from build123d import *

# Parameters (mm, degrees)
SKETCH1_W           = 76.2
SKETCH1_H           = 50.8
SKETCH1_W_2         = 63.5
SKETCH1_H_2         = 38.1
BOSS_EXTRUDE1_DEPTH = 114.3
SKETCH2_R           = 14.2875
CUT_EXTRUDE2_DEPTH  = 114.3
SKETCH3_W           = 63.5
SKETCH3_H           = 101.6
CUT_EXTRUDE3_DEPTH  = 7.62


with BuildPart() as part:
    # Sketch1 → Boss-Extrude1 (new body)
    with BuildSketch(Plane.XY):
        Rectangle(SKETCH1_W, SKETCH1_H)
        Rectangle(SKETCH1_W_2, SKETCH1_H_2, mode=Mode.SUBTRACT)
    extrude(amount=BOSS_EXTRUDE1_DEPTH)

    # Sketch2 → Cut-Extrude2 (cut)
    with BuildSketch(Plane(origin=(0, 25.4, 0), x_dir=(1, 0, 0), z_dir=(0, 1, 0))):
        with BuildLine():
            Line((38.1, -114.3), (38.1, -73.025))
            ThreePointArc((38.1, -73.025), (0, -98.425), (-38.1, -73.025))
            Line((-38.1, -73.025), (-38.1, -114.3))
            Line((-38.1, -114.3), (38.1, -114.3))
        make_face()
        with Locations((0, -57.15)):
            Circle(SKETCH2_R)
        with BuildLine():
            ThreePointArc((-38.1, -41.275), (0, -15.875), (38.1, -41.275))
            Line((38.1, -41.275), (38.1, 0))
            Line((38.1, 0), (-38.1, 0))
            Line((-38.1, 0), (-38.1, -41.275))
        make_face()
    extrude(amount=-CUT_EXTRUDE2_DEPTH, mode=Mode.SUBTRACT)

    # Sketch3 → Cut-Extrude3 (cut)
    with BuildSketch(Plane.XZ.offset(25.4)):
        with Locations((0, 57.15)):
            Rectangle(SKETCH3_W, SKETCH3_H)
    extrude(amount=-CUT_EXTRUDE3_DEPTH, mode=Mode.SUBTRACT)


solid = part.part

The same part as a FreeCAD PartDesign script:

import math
import FreeCAD as App
import Part
import Sketcher
from FreeCAD import Vector
Q = App.Units.Quantity


def add_polygon(sketch, points):
    """Adds a closed chain of lines whose ends are joined by coincident constraints."""
    first, n = sketch.GeometryCount, len(points)
    for a, b in zip(points, points[1:] + points[:1]):
        sketch.addGeometry(Part.LineSegment(App.Vector(*a, 0), App.Vector(*b, 0)), False)
    for i in range(n):
        sketch.addConstraint(Sketcher.Constraint("Coincident", first + i, 2, first + (i + 1) % n, 1))

doc = App.newDocument("Part")
body = doc.addObject("PartDesign::Body", "Body")

sketch1 = body.newObject("Sketcher::SketchObject", "Sketch")
sketch1.AttachmentSupport = (doc.getObject("XY_Plane"), [""])
sketch1.MapMode = "FlatFace"
add_polygon(sketch1, [(-38, 25), (-38, -25), (38, -25), (38, 25)])
add_polygon(sketch1, [(32, -19), (-32, -19), (-32, 19), (32, 19)])
sketch1.addConstraint([
    Sketcher.Constraint("Vertical", 0),
    Sketcher.Constraint("Horizontal", 1),
    Sketcher.Constraint("Vertical", 2),
    Sketcher.Constraint("Horizontal", 3),
    Sketcher.Constraint("Horizontal", 4),
    Sketcher.Constraint("Vertical", 5),
    Sketcher.Constraint("Horizontal", 6),
    Sketcher.Constraint("Vertical", 7),
    Sketcher.Constraint("Symmetric", 0, 2, 2, 2, -1, 1),
    Sketcher.Constraint("Symmetric", 4, 2, 6, 2, -1, 1),
    Sketcher.Constraint("DistanceX", 1, 1, 1, 2, Q("3 in")),
    Sketcher.Constraint("DistanceY", 0, 2, 0, 1, Q("2 in")),
    Sketcher.Constraint("DistanceX", 4, 2, 4, 1, Q("2.5 in")),
    Sketcher.Constraint("DistanceY", 5, 1, 5, 2, Q("1.5 in")),
])
pad1 = body.newObject("PartDesign::Pad", "Pad")
pad1.Profile = sketch1
pad1.Length = Q("4.5 in")

sketch2 = body.newObject("Sketcher::SketchObject", "Sketch001")
sketch2.AttachmentSupport = (doc.getObject("XZ_Plane"), [""])
sketch2.MapMode = "FlatFace"
sketch2.AttachmentOffset = App.Placement(Vector(0, 0, -1 * 25.4), App.Rotation())
sketch2.addGeometry([
    Part.LineSegment(Vector(38, 114, 0), Vector(38, 73, 0)),
    Part.ArcOfCircle(Part.Circle(Vector(0, 57, 0), Vector(0, 0, 1), 41), math.radians(23), math.radians(157)),
    Part.LineSegment(Vector(-38, 73, 0), Vector(-38, 114, 0)),
    Part.LineSegment(Vector(-38, 114, 0), Vector(38, 114, 0)),
    Part.Circle(Vector(0, 57, 0), Vector(0, 0, 1), 14),
    Part.ArcOfCircle(Part.Circle(Vector(0, 57, 0), Vector(0, 0, 1), 41), math.radians(-157), math.radians(-23)),
    Part.LineSegment(Vector(38, 41, 0), Vector(38, 0, 0)),
    Part.LineSegment(Vector(38, 0, 0), Vector(-38, 0, 0)),
    Part.LineSegment(Vector(-38, 0, 0), Vector(-38, 41, 0)),
], False)
sketch2.addConstraint([
    Sketcher.Constraint("Coincident", 0, 2, 1, 1),
    Sketcher.Constraint("Coincident", 1, 2, 2, 1),
    Sketcher.Constraint("Coincident", 2, 2, 3, 1),
    Sketcher.Constraint("Coincident", 3, 2, 0, 1),
    Sketcher.Constraint("Coincident", 5, 2, 6, 1),
    Sketcher.Constraint("Coincident", 6, 2, 7, 1),
    Sketcher.Constraint("Coincident", 7, 2, 8, 1),
    Sketcher.Constraint("Coincident", 8, 2, 5, 1),
    Sketcher.Constraint("Vertical", 0),
    Sketcher.Constraint("Vertical", 2),
    Sketcher.Constraint("Horizontal", 3),
    Sketcher.Constraint("Vertical", 6),
    Sketcher.Constraint("Horizontal", 7),
    Sketcher.Constraint("Vertical", 8),
    Sketcher.Constraint("Coincident", 4, 3, 1, 3),
    Sketcher.Constraint("Coincident", 5, 3, 1, 3),
    Sketcher.Constraint("Equal", 1, 5),
    Sketcher.Constraint("Symmetric", 6, 2, 7, 2, -1, 1),
    Sketcher.Constraint("Symmetric", 0, 2, 1, 2, -2),
    Sketcher.Constraint("Vertical", 3, 2, 5, 2),
    Sketcher.Constraint("Equal", 2, 6),
    Sketcher.Constraint("DistanceX", 3, 1, 3, 2, Q("3 in")),
    Sketcher.Constraint("Diameter", 4, Q("1.125 in")),
    Sketcher.Constraint("Radius", 1, Q("1.625 in")),
    Sketcher.Constraint("DistanceY", -1, 1, 2, 2, Q("4.5 in")),
])
pocket1 = body.newObject("PartDesign::Pocket", "Pocket")
pocket1.Profile = sketch2
pocket1.Length = Q("4.5 in")
pocket1.Reversed = True

sketch3 = body.newObject("Sketcher::SketchObject", "Sketch002")
sketch3.AttachmentSupport = (doc.getObject("XZ_Plane"), [""])
sketch3.MapMode = "FlatFace"
sketch3.AttachmentOffset = App.Placement(Vector(0, 0, 1 * 25.4), App.Rotation())
add_polygon(sketch3, [(-32, 108), (-32, 6), (32, 6), (32, 108)])
sketch3.addConstraint([
    Sketcher.Constraint("Vertical", 0),
    Sketcher.Constraint("Horizontal", 1),
    Sketcher.Constraint("Vertical", 2),
    Sketcher.Constraint("Horizontal", 3),
    Sketcher.Constraint("DistanceY", 0, 2, 0, 1, Q("4 in")),
    Sketcher.Constraint("DistanceX", 1, 1, 1, 2, Q("2.5 in")),
    Sketcher.Constraint("DistanceX", 0, 2, -1, 1, Q("1.25 in")),
    Sketcher.Constraint("DistanceY", -1, 1, 0, 2, Q("0.25 in")),
])
pocket2 = body.newObject("PartDesign::Pocket", "Pocket001")
pocket2.Profile = sketch3
pocket2.Length = Q("0.3 in")

doc.recompute()
